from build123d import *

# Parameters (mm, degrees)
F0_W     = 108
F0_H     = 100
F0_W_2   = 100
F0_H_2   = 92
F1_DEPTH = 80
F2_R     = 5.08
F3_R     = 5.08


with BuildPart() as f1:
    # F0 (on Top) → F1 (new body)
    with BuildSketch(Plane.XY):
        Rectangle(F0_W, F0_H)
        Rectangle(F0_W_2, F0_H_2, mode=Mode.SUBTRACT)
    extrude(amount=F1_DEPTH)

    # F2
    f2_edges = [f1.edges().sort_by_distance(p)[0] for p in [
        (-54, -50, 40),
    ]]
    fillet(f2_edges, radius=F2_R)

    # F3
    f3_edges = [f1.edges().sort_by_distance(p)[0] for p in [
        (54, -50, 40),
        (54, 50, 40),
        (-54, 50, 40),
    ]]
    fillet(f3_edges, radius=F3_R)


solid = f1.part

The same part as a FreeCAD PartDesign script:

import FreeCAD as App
import Part
import Sketcher


def edges_at(feature, points):
    """Names of the edges that pass closest to the given points."""
    edges = feature.Shape.Edges
    near = lambda p: min(range(len(edges)), key=lambda i: edges[i].distToShape(Part.Vertex(*p))[0])
    return sorted({f"Edge{near(p) + 1}" for p in points})


def add_polygon(sketch, points):
    """Adds a closed chain of lines whose ends are joined by coincident constraints."""
    first, n = sketch.GeometryCount, len(points)
    for a, b in zip(points, points[1:] + points[:1]):
        sketch.addGeometry(Part.LineSegment(App.Vector(*a, 0), App.Vector(*b, 0)), False)
    for i in range(n):
        sketch.addConstraint(Sketcher.Constraint("Coincident", first + i, 2, first + (i + 1) % n, 1))

doc = App.newDocument("Part")
body = doc.addObject("PartDesign::Body", "Body")

sketch1 = body.newObject("Sketcher::SketchObject", "Sketch")
sketch1.AttachmentSupport = (doc.getObject("XY_Plane"), [""])
sketch1.MapMode = "FlatFace"
add_polygon(sketch1, [(-54, 50), (-54, -50), (54, -50), (54, 50)])
add_polygon(sketch1, [(50, -46), (-50, -46), (-50, 46), (50, 46)])
sketch1.addConstraint(Sketcher.Constraint("Vertical", 0))
sketch1.addConstraint(Sketcher.Constraint("Horizontal", 1))
sketch1.addConstraint(Sketcher.Constraint("Vertical", 2))
sketch1.addConstraint(Sketcher.Constraint("Horizontal", 3))
sketch1.addConstraint(Sketcher.Constraint("Horizontal", 4))
sketch1.addConstraint(Sketcher.Constraint("Vertical", 5))
sketch1.addConstraint(Sketcher.Constraint("Horizontal", 6))
sketch1.addConstraint(Sketcher.Constraint("Vertical", 7))
sketch1.addConstraint(Sketcher.Constraint("Symmetric", 0, 2, 2, 2, -1, 1))
sketch1.addConstraint(Sketcher.Constraint("Symmetric", 4, 2, 6, 2, -1, 1))
sketch1.addConstraint(Sketcher.Constraint("Equal", 6, 0))
sketch1.addConstraint(Sketcher.Constraint("DistanceX", 1, 1, 1, 2, 108.0))
sketch1.addConstraint(Sketcher.Constraint("DistanceX", 4, 2, 4, 1, 100.0))
sketch1.addConstraint(Sketcher.Constraint("DistanceY", 5, 1, 5, 2, 92.0))
pad1 = body.newObject("PartDesign::Pad", "Pad")
pad1.Profile = sketch1
pad1.Length = 80
doc.recompute()

fillet = body.newObject("PartDesign::Fillet", "Fillet")
fillet.Base = (pad1, edges_at(pad1, [(-54, -50, 40)]))
fillet.Radius = 5.08
doc.recompute()

fillet2 = body.newObject("PartDesign::Fillet", "Fillet001")
fillet2.Base = (fillet, edges_at(fillet, [(54, -50, 40), (54, 50, 40), (-54, 50, 40)]))
fillet2.Radius = 5.08

doc.recompute()
